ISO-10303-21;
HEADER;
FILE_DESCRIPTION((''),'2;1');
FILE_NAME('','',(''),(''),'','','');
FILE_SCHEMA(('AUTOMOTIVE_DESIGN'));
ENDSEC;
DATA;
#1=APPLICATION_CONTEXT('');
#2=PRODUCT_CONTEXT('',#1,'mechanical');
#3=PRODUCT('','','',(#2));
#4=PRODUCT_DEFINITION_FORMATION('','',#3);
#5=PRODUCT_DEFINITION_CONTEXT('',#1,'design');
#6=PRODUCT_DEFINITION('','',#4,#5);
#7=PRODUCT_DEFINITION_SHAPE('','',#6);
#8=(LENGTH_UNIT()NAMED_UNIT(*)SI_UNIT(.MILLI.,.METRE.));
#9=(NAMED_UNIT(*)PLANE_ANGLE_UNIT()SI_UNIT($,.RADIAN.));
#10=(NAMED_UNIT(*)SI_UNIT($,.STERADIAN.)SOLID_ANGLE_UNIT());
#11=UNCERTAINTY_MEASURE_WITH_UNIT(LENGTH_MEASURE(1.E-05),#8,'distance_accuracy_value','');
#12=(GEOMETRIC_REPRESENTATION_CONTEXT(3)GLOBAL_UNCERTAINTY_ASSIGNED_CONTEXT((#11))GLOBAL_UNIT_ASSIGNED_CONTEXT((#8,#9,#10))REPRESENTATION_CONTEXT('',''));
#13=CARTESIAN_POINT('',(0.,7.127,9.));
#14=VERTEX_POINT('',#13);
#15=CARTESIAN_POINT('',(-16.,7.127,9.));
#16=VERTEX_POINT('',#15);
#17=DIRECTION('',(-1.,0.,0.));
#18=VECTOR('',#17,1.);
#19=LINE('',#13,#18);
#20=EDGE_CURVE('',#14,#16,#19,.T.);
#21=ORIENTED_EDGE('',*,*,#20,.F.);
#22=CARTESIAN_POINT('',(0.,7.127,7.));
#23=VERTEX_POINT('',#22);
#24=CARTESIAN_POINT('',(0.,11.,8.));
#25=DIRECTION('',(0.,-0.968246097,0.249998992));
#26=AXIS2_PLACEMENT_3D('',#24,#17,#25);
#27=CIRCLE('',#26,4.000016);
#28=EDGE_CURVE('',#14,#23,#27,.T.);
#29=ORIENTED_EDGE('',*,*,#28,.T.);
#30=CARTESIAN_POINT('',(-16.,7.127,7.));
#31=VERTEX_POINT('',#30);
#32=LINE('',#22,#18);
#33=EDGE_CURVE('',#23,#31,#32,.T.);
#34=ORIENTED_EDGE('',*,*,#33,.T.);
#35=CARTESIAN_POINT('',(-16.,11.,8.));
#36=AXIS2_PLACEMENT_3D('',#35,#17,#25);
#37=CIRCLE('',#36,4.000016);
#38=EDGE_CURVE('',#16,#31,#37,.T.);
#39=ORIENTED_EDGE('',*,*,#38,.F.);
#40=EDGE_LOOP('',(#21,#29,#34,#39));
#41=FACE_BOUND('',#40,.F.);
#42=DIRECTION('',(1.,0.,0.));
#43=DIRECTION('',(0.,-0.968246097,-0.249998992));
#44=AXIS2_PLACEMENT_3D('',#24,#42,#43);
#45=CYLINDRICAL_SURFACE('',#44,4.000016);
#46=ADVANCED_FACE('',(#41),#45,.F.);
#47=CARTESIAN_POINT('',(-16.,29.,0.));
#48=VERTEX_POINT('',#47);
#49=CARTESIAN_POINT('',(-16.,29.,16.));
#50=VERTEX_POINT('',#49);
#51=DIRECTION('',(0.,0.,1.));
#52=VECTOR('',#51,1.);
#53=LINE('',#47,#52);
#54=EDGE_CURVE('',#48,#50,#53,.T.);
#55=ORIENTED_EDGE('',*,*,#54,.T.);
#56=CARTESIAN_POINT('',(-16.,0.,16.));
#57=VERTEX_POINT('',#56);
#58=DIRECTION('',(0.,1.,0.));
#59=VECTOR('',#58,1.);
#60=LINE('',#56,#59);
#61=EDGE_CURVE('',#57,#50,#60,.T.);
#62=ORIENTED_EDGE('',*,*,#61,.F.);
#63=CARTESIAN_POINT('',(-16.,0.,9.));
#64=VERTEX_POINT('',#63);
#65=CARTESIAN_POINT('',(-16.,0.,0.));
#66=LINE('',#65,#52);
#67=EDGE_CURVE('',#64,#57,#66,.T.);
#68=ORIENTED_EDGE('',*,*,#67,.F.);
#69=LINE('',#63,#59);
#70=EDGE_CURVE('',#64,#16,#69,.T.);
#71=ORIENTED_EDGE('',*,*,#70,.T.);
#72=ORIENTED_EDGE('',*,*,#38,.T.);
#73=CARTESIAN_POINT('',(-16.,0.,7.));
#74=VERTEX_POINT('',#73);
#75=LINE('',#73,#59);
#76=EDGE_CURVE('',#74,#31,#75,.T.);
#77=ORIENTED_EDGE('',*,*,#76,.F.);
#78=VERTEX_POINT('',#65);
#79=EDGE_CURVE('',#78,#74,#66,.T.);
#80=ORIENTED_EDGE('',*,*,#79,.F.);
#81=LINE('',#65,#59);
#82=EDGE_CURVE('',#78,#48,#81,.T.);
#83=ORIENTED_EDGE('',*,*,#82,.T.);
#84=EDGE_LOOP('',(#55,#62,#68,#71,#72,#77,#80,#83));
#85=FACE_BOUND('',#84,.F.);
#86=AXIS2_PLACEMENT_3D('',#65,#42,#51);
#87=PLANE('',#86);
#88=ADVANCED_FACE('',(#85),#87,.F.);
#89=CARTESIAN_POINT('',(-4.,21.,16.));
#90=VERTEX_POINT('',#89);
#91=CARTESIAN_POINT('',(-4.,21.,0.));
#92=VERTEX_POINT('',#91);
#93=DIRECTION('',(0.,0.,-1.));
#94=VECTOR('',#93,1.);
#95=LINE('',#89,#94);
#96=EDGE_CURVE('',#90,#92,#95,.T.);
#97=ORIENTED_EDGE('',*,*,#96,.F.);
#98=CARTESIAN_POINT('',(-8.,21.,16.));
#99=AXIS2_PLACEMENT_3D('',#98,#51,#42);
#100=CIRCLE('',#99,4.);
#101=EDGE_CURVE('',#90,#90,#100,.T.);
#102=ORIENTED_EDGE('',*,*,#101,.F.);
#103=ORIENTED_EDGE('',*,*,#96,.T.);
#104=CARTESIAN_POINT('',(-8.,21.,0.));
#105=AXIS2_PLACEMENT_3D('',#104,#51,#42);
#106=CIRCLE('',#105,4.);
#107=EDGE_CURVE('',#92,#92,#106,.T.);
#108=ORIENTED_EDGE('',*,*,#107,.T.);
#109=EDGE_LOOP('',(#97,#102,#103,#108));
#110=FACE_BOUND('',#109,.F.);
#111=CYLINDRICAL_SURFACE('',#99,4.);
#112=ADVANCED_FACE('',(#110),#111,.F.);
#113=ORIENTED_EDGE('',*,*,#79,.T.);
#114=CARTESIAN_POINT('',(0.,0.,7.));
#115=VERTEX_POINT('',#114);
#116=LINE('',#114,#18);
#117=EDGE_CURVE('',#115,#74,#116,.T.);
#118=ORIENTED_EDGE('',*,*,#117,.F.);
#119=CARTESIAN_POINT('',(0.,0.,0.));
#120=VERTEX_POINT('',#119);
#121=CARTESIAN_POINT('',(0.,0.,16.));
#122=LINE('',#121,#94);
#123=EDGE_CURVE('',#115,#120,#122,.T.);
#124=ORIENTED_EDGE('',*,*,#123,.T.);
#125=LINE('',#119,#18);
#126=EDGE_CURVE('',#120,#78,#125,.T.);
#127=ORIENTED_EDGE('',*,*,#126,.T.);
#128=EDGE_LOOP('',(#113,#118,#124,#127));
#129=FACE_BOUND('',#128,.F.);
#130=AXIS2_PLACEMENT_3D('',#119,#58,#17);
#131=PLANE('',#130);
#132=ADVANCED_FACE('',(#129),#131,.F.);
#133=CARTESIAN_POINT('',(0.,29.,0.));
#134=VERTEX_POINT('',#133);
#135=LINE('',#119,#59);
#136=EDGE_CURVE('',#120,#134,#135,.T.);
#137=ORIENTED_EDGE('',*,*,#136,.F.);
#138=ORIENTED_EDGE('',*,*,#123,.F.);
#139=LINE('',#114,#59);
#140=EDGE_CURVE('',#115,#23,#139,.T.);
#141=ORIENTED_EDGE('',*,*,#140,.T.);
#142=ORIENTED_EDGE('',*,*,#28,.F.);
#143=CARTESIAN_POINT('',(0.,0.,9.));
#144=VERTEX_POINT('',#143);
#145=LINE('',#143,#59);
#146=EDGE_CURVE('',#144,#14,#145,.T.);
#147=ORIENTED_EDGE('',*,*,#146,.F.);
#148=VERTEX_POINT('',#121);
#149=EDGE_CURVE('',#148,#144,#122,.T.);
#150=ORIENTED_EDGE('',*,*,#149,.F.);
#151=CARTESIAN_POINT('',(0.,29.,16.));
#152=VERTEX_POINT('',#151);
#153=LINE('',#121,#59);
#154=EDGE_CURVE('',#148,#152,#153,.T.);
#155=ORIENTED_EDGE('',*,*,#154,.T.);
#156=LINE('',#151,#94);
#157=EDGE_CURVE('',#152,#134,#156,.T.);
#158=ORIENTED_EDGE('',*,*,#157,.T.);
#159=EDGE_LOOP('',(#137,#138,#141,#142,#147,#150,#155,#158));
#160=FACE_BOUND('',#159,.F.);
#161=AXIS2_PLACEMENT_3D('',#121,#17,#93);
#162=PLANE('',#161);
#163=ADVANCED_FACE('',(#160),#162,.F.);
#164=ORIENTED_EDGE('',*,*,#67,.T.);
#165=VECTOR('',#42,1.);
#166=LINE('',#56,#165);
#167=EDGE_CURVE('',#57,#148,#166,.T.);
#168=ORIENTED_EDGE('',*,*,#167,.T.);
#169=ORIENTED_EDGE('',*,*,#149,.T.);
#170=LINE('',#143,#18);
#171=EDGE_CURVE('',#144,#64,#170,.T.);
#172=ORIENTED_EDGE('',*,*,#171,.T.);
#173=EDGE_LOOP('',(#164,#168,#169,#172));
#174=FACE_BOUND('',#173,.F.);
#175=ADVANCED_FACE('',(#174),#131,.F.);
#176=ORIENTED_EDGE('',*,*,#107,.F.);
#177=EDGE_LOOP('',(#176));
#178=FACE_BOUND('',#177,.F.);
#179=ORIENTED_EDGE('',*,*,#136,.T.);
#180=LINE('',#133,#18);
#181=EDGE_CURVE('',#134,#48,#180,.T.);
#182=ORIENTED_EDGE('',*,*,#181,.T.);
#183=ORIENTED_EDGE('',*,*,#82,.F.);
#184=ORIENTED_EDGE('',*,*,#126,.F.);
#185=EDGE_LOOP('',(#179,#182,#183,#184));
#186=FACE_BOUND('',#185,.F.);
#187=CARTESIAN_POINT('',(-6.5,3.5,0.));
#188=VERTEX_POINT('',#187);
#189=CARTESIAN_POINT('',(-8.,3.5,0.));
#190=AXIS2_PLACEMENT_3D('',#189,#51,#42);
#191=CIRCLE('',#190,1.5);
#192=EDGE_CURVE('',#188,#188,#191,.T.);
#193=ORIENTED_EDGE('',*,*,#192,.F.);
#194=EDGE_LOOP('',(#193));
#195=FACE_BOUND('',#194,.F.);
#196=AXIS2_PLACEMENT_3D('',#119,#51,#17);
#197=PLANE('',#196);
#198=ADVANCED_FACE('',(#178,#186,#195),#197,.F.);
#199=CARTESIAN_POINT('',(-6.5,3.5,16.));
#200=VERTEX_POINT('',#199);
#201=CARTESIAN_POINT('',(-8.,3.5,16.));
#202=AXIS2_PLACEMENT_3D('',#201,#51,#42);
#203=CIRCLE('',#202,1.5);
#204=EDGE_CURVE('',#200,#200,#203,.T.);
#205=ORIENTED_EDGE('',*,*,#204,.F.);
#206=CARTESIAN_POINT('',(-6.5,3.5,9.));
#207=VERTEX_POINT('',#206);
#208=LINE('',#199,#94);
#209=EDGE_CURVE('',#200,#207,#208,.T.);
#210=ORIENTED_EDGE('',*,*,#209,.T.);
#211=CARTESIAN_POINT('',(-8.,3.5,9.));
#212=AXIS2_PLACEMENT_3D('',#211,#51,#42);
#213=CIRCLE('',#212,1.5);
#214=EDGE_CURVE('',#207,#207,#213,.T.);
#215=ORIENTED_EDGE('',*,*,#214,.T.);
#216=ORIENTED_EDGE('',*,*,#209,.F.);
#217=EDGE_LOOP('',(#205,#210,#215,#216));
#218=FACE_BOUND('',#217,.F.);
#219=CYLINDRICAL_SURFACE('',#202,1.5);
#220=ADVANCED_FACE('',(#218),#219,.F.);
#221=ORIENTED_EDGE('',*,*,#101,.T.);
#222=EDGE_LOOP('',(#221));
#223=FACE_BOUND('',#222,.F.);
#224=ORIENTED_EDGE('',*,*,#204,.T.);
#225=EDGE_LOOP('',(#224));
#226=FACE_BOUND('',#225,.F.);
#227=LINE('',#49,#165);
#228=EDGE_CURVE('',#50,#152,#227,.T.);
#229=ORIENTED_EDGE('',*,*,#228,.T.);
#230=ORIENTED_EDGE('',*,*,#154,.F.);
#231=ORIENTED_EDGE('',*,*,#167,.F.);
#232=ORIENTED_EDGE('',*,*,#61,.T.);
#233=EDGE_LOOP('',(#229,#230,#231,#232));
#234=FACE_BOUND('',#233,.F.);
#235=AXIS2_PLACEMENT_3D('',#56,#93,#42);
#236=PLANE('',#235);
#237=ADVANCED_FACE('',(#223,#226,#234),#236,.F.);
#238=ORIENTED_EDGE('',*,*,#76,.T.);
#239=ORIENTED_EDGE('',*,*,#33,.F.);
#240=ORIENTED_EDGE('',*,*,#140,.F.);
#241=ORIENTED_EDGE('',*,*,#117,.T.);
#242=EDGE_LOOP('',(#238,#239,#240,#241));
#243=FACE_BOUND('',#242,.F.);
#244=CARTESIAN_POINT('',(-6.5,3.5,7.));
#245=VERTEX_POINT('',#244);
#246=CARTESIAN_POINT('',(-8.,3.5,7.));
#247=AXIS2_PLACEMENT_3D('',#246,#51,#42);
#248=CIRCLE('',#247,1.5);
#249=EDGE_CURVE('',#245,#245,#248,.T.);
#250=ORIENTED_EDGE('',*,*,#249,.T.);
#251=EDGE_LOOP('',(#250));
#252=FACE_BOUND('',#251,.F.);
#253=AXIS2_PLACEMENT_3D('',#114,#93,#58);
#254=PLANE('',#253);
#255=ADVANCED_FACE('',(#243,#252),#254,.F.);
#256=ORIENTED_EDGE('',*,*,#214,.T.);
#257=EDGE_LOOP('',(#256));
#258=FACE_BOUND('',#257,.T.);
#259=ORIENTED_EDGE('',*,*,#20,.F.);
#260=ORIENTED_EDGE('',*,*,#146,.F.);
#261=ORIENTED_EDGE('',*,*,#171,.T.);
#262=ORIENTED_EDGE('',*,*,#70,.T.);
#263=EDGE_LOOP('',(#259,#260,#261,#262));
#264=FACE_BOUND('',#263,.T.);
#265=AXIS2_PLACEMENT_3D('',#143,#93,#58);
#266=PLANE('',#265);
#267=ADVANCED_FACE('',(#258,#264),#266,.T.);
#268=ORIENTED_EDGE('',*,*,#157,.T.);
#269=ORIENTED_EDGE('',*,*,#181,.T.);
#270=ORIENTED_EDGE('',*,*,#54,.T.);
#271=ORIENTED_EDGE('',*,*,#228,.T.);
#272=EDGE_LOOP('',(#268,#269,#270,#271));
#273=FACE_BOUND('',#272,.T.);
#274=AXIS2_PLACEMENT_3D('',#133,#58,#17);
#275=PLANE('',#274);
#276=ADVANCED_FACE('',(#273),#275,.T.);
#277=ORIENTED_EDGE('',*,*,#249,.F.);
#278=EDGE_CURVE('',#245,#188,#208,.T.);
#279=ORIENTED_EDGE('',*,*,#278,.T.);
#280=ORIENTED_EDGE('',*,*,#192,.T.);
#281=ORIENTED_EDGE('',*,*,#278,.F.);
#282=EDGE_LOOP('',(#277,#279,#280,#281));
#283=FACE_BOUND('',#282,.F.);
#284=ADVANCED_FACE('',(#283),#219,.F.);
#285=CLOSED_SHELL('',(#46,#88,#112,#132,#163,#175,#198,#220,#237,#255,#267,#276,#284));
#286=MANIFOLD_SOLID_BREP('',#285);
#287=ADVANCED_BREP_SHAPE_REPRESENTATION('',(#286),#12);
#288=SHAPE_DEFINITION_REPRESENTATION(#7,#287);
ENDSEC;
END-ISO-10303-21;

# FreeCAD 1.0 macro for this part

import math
import FreeCAD as App
import Part
import Sketcher

doc = App.newDocument("Part")
body = doc.addObject("PartDesign::Body", "Body")

sketch1 = body.newObject("Sketcher::SketchObject", "Sketch")
sketch1.AttachmentSupport = (doc.getObject("XZ_Plane"), [""])
sketch1.MapMode = "FlatFace"
sketch1.addGeometry([
    Part.LineSegment(App.Vector(0, 16, 0), App.Vector(0, 0, 0)),
    Part.LineSegment(App.Vector(0, 0, 0), App.Vector(-16, 0, 0)),
    Part.LineSegment(App.Vector(-16, 0, 0), App.Vector(-16, 16, 0)),
    Part.LineSegment(App.Vector(-16, 16, 0), App.Vector(0, 16, 0)),
], False)
sketch1.addConstraint([
    Sketcher.Constraint("Coincident", 0, 2, 1, 1),
    Sketcher.Constraint("Coincident", 1, 2, 2, 1),
    Sketcher.Constraint("Coincident", 2, 2, 3, 1),
    Sketcher.Constraint("Coincident", 3, 2, 0, 1),
    Sketcher.Constraint("Vertical", 0),
    Sketcher.Constraint("Horizontal", 1),
    Sketcher.Constraint("Vertical", 2),
    Sketcher.Constraint("Horizontal", 3),
    Sketcher.Constraint("Coincident", 0, 2, -1, 1),
    Sketcher.Constraint("Equal", 3, 0),
    Sketcher.Constraint("DistanceX", 1, 2, 1, 1, 16.0),
])
pad1 = body.newObject("PartDesign::Pad", "Pad")
pad1.Profile = sketch1
pad1.Length = 29
pad1.Reversed = True

sketch2 = body.newObject("Sketcher::SketchObject", "Sketch001")
sketch2.AttachmentSupport = (doc.getObject("XY_Plane"), [""])
sketch2.MapMode = "FlatFace"
sketch2.AttachmentOffset = App.Placement(App.Vector(0, 0, 16), App.Rotation())
sketch2.addGeometry([
    Part.Circle(App.Vector(-8, 3.5, 0), App.Vector(0, 0, 1), 1.5),
    Part.Circle(App.Vector(-8, 21, 0), App.Vector(0, 0, 1), 4),
], False)
sketch2.addConstraint([
    Sketcher.Constraint("Vertical", 0, 3, 1, 3),
    Sketcher.Constraint("Diameter", 0, 3.0),
    Sketcher.Constraint("Diameter", 1, 8.0),
    Sketcher.Constraint("DistanceX", 0, 3, -1, 1, 8.0),
    Sketcher.Constraint("DistanceY", -1, 1, 1, 3, 21.0),
    Sketcher.Constraint("DistanceY", -1, 1, 0, 3, 3.5),
])
pocket1 = body.newObject("PartDesign::Pocket", "Pocket")
pocket1.Profile = sketch2
pocket1.Length = 29

sketch3 = body.newObject("Sketcher::SketchObject", "Sketch002")
sketch3.AttachmentSupport = (doc.getObject("YZ_Plane"), [""])
sketch3.MapMode = "FlatFace"
sketch3.addGeometry([
    Part.LineSegment(App.Vector(7.1, 9, 0), App.Vector(0, 9, 0)),
    Part.LineSegment(App.Vector(0, 9, 0), App.Vector(0, 7, 0)),
    Part.LineSegment(App.Vector(0, 7, 0), App.Vector(7.1, 7, 0)),
    Part.ArcOfCircle(Part.Circle(App.Vector(11, 8, 0), App.Vector(0, 0, 1), 4), math.radians(-166), math.radians(166)),
], False)
sketch3.addConstraint([
    Sketcher.Constraint("Coincident", 0, 2, 1, 1),
    Sketcher.Constraint("Coincident", 1, 2, 2, 1),
    Sketcher.Constraint("Coincident", 2, 2, 3, 1),
    Sketcher.Constraint("Coincident", 3, 2, 0, 1),
    Sketcher.Constraint("Horizontal", 0),
    Sketcher.Constraint("Vertical", 1),
    Sketcher.Constraint("Horizontal", 2),
    Sketcher.Constraint("PointOnObject", 0, 2, -2),
    Sketcher.Constraint("Vertical", 2, 2, 3, 2),
    Sketcher.Constraint("Radius", 3, 4.0),
    Sketcher.Constraint("DistanceX", -1, 1, 3, 3, 11.0),
    Sketcher.Constraint("DistanceY", -1, 1, 3, 3, 8.0),
    Sketcher.Constraint("DistanceY", 3, 3, 0, 2, 1.0),
])
pocket2 = body.newObject("PartDesign::Pocket", "Pocket001")
pocket2.Profile = sketch3
pocket2.Length = 29

doc.recompute()
